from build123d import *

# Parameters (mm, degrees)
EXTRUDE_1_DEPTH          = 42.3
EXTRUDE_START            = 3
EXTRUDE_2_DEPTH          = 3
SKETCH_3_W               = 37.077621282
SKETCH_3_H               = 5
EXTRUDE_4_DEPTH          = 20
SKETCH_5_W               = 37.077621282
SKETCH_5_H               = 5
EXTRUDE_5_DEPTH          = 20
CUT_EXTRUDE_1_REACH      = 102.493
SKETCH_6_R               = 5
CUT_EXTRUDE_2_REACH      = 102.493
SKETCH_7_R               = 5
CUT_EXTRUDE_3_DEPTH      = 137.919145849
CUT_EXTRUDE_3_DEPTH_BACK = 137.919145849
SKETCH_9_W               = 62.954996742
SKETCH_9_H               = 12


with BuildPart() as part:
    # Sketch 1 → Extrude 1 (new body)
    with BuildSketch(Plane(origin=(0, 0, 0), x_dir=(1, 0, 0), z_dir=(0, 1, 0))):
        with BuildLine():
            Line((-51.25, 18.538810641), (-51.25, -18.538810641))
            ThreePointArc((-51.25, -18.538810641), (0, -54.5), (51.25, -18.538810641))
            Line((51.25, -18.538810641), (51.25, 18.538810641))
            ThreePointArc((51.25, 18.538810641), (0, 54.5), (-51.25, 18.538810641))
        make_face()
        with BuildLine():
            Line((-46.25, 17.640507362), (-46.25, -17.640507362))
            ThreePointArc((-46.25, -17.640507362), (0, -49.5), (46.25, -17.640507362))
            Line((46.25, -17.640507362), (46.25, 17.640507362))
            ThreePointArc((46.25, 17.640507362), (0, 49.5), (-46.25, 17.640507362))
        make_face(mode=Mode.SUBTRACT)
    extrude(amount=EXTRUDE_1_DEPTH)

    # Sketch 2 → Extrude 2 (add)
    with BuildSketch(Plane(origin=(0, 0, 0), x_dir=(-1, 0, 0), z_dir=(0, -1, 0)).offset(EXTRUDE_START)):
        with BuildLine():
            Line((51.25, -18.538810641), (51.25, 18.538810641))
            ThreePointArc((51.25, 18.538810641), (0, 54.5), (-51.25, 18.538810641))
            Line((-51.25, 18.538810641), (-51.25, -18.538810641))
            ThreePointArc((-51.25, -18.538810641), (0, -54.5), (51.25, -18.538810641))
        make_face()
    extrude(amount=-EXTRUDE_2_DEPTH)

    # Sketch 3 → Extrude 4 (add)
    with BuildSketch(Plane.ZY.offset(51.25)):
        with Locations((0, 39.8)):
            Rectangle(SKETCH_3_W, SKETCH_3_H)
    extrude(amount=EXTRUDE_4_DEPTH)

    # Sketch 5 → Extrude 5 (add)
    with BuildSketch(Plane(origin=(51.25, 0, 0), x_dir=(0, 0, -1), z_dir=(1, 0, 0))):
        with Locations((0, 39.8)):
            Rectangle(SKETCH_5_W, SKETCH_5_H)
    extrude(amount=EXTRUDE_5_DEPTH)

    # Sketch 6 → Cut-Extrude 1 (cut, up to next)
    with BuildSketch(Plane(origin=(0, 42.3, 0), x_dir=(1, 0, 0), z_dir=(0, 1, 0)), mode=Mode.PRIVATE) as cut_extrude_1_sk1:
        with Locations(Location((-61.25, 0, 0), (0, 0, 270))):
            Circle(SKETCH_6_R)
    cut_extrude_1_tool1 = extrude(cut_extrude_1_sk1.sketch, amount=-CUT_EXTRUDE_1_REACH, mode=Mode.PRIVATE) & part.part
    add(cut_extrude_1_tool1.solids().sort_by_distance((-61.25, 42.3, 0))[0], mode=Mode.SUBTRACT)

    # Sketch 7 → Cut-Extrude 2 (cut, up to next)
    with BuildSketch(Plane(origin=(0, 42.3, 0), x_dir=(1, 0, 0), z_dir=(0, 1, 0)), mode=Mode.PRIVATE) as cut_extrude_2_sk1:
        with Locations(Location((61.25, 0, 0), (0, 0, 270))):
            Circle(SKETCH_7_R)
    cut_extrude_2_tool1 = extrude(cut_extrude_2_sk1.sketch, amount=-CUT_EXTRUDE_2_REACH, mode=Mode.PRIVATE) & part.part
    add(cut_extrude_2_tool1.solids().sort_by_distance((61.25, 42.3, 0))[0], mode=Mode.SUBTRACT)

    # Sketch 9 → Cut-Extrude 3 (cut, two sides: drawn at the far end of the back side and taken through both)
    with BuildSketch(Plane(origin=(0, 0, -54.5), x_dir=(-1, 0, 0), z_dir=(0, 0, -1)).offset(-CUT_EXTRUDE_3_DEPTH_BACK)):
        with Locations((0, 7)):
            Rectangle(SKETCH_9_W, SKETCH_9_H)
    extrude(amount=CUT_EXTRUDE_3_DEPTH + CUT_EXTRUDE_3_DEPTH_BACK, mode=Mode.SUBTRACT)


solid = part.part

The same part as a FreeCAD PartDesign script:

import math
import FreeCAD as App
import Part
import Sketcher
from FreeCAD import Vector
Q = App.Units.Quantity

doc = App.newDocument("Part")
params = doc.addObject("Spreadsheet::Sheet", "Params")
for row, (alias, value) in enumerate([
    ("sketch1_radius", "54.5 mm"),
    ("sketch1_radius2", "49.5 mm"),
    ("pad1_length", "42.3 mm"),
    ("sketch2_radius", "54.5 mm"),
    ("pad2_length", "3 mm"),
    ("sketch3_width", "5 mm"),
    ("pad3_length", "20 mm"),
    ("sketch4_width", "5 mm"),
    ("pad4_length", "20 mm"),
    ("sketch5_diameter", "10 mm"),
    ("sketch6_diameter", "10 mm"),
    ("sketch7_height", "12 mm"),
], start=1):
    params.set(f"A{row}", alias)
    params.set(f"B{row}", "=" + value)
    params.setAlias(f"B{row}", alias)

body = doc.addObject("PartDesign::Body", "Body")

sketch1 = body.newObject("Sketcher::SketchObject", "Sketch")
sketch1.AttachmentSupport = (doc.getObject("XZ_Plane"), [""])
sketch1.MapMode = "FlatFace"
sketch1.addGeometry([
    Part.LineSegment(Vector(-51, -19, 0), Vector(-51, 19, 0)),
    Part.ArcOfCircle(Part.Circle(Vector(0, 0, 0), Vector(0, 0, 1), 54), math.radians(20), math.radians(160)),
    Part.LineSegment(Vector(51, 19, 0), Vector(51, -19, 0)),
    Part.ArcOfCircle(Part.Circle(Vector(0, 0, 0), Vector(0, 0, 1), 54), math.radians(-160), math.radians(-20)),
    Part.LineSegment(Vector(-46, 18, 0), Vector(-46, -18, 0)),
    Part.ArcOfCircle(Part.Circle(Vector(0, 0, 0), Vector(0, 0, 1), 50), math.radians(-159), math.radians(-21)),
    Part.LineSegment(Vector(46, -18, 0), Vector(46, 18, 0)),
    Part.ArcOfCircle(Part.Circle(Vector(0, 0, 0), Vector(0, 0, 1), 50), math.radians(21), math.radians(159)),
], False)
sketch1.addConstraint([
    Sketcher.Constraint("Coincident", 0, 2, 1, 2),
    Sketcher.Constraint("Coincident", 1, 1, 2, 1),
    Sketcher.Constraint("Coincident", 2, 2, 3, 2),
    Sketcher.Constraint("Coincident", 3, 1, 0, 1),
    Sketcher.Constraint("Coincident", 4, 2, 5, 1),
    Sketcher.Constraint("Coincident", 5, 2, 6, 1),
    Sketcher.Constraint("Coincident", 6, 2, 7, 1),
    Sketcher.Constraint("Coincident", 7, 2, 4, 1),
    Sketcher.Constraint("Vertical", 0),
    Sketcher.Constraint("Vertical", 2),
    Sketcher.Constraint("Vertical", 4),
    Sketcher.Constraint("Vertical", 6),
    Sketcher.Constraint("Coincident", 1, 3, -1, 1),
    Sketcher.Constraint("Coincident", 3, 3, -1, 1),
    Sketcher.Constraint("Coincident", 5, 3, -1, 1),
    Sketcher.Constraint("Coincident", 7, 3, -1, 1),
    Sketcher.Constraint("Equal", 1, 3),
    Sketcher.Constraint("Equal", 5, 7),
    Sketcher.Constraint("Horizontal", 0, 2, 1, 1),
    Sketcher.Constraint("Horizontal", 4, 2, 5, 2),
    Sketcher.Constraint("Radius", 1, Q("54.5 mm")),
    Sketcher.Constraint("Radius", 5, Q("49.5 mm")),
    Sketcher.Constraint("DistanceX", 3, 1, 4, 2, Q("5 mm")),
    Sketcher.Constraint("DistanceX", 0, 2, 1, 1, Q("102.5 mm")),
])
sketch1.setExpression("Constraints[20]", "Params.sketch1_radius")
sketch1.setExpression("Constraints[21]", "Params.sketch1_radius2")
pad1 = body.newObject("PartDesign::Pad", "Pad")
pad1.Profile = sketch1
pad1.setExpression("Length", "Params.pad1_length")
pad1.Reversed = True

sketch2 = body.newObject("Sketcher::SketchObject", "Sketch001")
sketch2.AttachmentSupport = (doc.getObject("XZ_Plane"), [""])
sketch2.MapMode = "FlatFace"
sketch2.AttachmentOffset = App.Placement(Vector(0, 0, 3), App.Rotation())
sketch2.addGeometry([
    Part.LineSegment(Vector(-51, 19, 0), Vector(-51, -19, 0)),
    Part.ArcOfCircle(Part.Circle(Vector(0, 0, 0), Vector(0, 0, 1), 54), math.radians(-160), math.radians(-20)),
    Part.LineSegment(Vector(51, -19, 0), Vector(51, 19, 0)),
    Part.ArcOfCircle(Part.Circle(Vector(0, 0, 0), Vector(0, 0, 1), 54), math.radians(20), math.radians(160)),
], False)
sketch2.addConstraint([
    Sketcher.Constraint("Coincident", 0, 2, 1, 1),
    Sketcher.Constraint("Coincident", 1, 2, 2, 1),
    Sketcher.Constraint("Coincident", 2, 2, 3, 1),
    Sketcher.Constraint("Coincident", 3, 2, 0, 1),
    Sketcher.Constraint("Vertical", 0),
    Sketcher.Constraint("Vertical", 2),
    Sketcher.Constraint("Coincident", 1, 3, -1, 1),
    Sketcher.Constraint("Coincident", 3, 3, -1, 1),
    Sketcher.Constraint("Equal", 1, 3),
    Sketcher.Constraint("Horizontal", 0, 2, 1, 2),
    Sketcher.Constraint("Radius", 1, Q("54.5 mm")),
    Sketcher.Constraint("DistanceX", 0, 2, 1, 2, Q("102.5 mm")),
])
sketch2.setExpression("Constraints[10]", "Params.sketch2_radius")
pad2 = body.newObject("PartDesign::Pad", "Pad001")
pad2.Profile = sketch2
pad2.setExpression("Length", "Params.pad2_length")
pad2.Reversed = True

sketch3 = body.newObject("Sketcher::SketchObject", "Sketch002")
sketch3.AttachmentSupport = (doc.getObject("YZ_Plane"), [""])
sketch3.MapMode = "FlatFace"
sketch3.AttachmentOffset = App.Placement(Vector(0, 0, -51.25), App.Rotation())
sketch3.addGeometry([
    Part.LineSegment(Vector(42, -19, 0), Vector(37, -19, 0)),
    Part.LineSegment(Vector(37, -19, 0), Vector(37, 19, 0)),
    Part.LineSegment(Vector(37, 19, 0), Vector(42, 19, 0)),
    Part.LineSegment(Vector(42, 19, 0), Vector(42, -19, 0)),
], False)
sketch3.addConstraint([
    Sketcher.Constraint("Coincident", 0, 2, 1, 1),
    Sketcher.Constraint("Coincident", 1, 2, 2, 1),
    Sketcher.Constraint("Coincident", 2, 2, 3, 1),
    Sketcher.Constraint("Coincident", 3, 2, 0, 1),
    Sketcher.Constraint("Horizontal", 0),
    Sketcher.Constraint("Vertical", 1),
    Sketcher.Constraint("Horizontal", 2),
    Sketcher.Constraint("Vertical", 3),
    Sketcher.Constraint("DistanceX", 0, 2, 0, 1, Q("5 mm")),
    Sketcher.Constraint("DistanceX", -1, 1, 0, 2, Q("37.3 mm")),
    Sketcher.Constraint("DistanceY", 1, 1, 1, 2, Q("37.077621 mm")),
    Sketcher.Constraint("DistanceY", 0, 2, -1, 1, Q("18.538811 mm")),
])
sketch3.setExpression("Constraints[8]", "Params.sketch3_width")
pad3 = body.newObject("PartDesign::Pad", "Pad002")
pad3.Profile = sketch3
pad3.setExpression("Length", "Params.pad3_length")
pad3.Reversed = True

sketch4 = body.newObject("Sketcher::SketchObject", "Sketch003")
sketch4.AttachmentSupport = (doc.getObject("YZ_Plane"), [""])
sketch4.MapMode = "FlatFace"
sketch4.AttachmentOffset = App.Placement(Vector(0, 0, 51.25), App.Rotation())
sketch4.addGeometry([
    Part.LineSegment(Vector(42, 19, 0), Vector(37, 19, 0)),
    Part.LineSegment(Vector(37, 19, 0), Vector(37, -19, 0)),
    Part.LineSegment(Vector(37, -19, 0), Vector(42, -19, 0)),
    Part.LineSegment(Vector(42, -19, 0), Vector(42, 19, 0)),
], False)
sketch4.addConstraint([
    Sketcher.Constraint("Coincident", 0, 2, 1, 1),
    Sketcher.Constraint("Coincident", 1, 2, 2, 1),
    Sketcher.Constraint("Coincident", 2, 2, 3, 1),
    Sketcher.Constraint("Coincident", 3, 2, 0, 1),
    Sketcher.Constraint("Horizontal", 0),
    Sketcher.Constraint("Vertical", 1),
    Sketcher.Constraint("Horizontal", 2),
    Sketcher.Constraint("Vertical", 3),
    Sketcher.Constraint("DistanceX", 0, 2, 0, 1, Q("5 mm")),
    Sketcher.Constraint("DistanceX", -1, 1, 0, 2, Q("37.3 mm")),
    Sketcher.Constraint("DistanceY", 1, 2, 1, 1, Q("37.077621 mm")),
    Sketcher.Constraint("DistanceY", -1, 1, 0, 2, Q("18.538811 mm")),
])
sketch4.setExpression("Constraints[8]", "Params.sketch4_width")
pad4 = body.newObject("PartDesign::Pad", "Pad003")
pad4.Profile = sketch4
pad4.setExpression("Length", "Params.pad4_length")

sketch5 = body.newObject("Sketcher::SketchObject", "Sketch004")
sketch5.AttachmentSupport = (doc.getObject("XZ_Plane"), [""])
sketch5.MapMode = "FlatFace"
sketch5.AttachmentOffset = App.Placement(Vector(0, 0, -42.3), App.Rotation())
sketch5.addGeometry(Part.Circle(Vector(-61, 0, 0), Vector(0, 0, 1), 5), False)
sketch5.addConstraint([
    Sketcher.Constraint("PointOnObject", 0, 3, -1),
    Sketcher.Constraint("Diameter", 0, Q("10 mm")),
    Sketcher.Constraint("DistanceX", 0, 3, -1, 1, Q("61.25 mm")),
])
sketch5.setExpression("Constraints[1]", "Params.sketch5_diameter")
pocket1 = body.newObject("PartDesign::Pocket", "Pocket")
pocket1.Profile = sketch5
pocket1.Type = "UpToFirst"
pocket1.Reversed = True

sketch6 = body.newObject("Sketcher::SketchObject", "Sketch005")
sketch6.AttachmentSupport = (doc.getObject("XZ_Plane"), [""])
sketch6.MapMode = "FlatFace"
sketch6.AttachmentOffset = App.Placement(Vector(0, 0, -42.3), App.Rotation())
sketch6.addGeometry(Part.Circle(Vector(61, 0, 0), Vector(0, 0, 1), 5), False)
sketch6.addConstraint([
    Sketcher.Constraint("PointOnObject", 0, 3, -1),
    Sketcher.Constraint("Diameter", 0, Q("10 mm")),
    Sketcher.Constraint("DistanceX", -1, 1, 0, 3, Q("61.25 mm")),
])
sketch6.setExpression("Constraints[1]", "Params.sketch6_diameter")
pocket2 = body.newObject("PartDesign::Pocket", "Pocket001")
pocket2.Profile = sketch6
pocket2.Type = "UpToFirst"
pocket2.Reversed = True

sketch7 = body.newObject("Sketcher::SketchObject", "Sketch006")
sketch7.AttachmentSupport = (doc.getObject("XY_Plane"), [""])
sketch7.MapMode = "FlatFace"
sketch7.AttachmentOffset = App.Placement(Vector(0, 0, -54.5), App.Rotation())
sketch7.addGeometry([
    Part.LineSegment(Vector(31, 13, 0), Vector(31, 1, 0)),
    Part.LineSegment(Vector(31, 1, 0), Vector(-31, 1, 0)),
    Part.LineSegment(Vector(-31, 1, 0), Vector(-31, 13, 0)),
    Part.LineSegment(Vector(-31, 13, 0), Vector(31, 13, 0)),
], False)
sketch7.addConstraint([
    Sketcher.Constraint("Coincident", 0, 2, 1, 1),
    Sketcher.Constraint("Coincident", 1, 2, 2, 1),
    Sketcher.Constraint("Coincident", 2, 2, 3, 1),
    Sketcher.Constraint("Coincident", 3, 2, 0, 1),
    Sketcher.Constraint("Vertical", 0),
    Sketcher.Constraint("Horizontal", 1),
    Sketcher.Constraint("Vertical", 2),
    Sketcher.Constraint("Horizontal", 3),
    Sketcher.Constraint("DistanceY", 0, 2, 0, 1, Q("12 mm")),
    Sketcher.Constraint("DistanceY", -1, 1, 0, 2, Q("1 mm")),
    Sketcher.Constraint("DistanceX", -1, 1, 0, 2, Q("31.477498 mm")),
    Sketcher.Constraint("DistanceX", 1, 2, -1, 1, Q("31.477498 mm")),
])
sketch7.setExpression("Constraints[8]", "Params.sketch7_height")
pocket3 = body.newObject("PartDesign::Pocket", "Pocket002")
pocket3.Profile = sketch7
pocket3.Type = "ThroughAll"
pocket3.Midplane = True

doc.recompute()
